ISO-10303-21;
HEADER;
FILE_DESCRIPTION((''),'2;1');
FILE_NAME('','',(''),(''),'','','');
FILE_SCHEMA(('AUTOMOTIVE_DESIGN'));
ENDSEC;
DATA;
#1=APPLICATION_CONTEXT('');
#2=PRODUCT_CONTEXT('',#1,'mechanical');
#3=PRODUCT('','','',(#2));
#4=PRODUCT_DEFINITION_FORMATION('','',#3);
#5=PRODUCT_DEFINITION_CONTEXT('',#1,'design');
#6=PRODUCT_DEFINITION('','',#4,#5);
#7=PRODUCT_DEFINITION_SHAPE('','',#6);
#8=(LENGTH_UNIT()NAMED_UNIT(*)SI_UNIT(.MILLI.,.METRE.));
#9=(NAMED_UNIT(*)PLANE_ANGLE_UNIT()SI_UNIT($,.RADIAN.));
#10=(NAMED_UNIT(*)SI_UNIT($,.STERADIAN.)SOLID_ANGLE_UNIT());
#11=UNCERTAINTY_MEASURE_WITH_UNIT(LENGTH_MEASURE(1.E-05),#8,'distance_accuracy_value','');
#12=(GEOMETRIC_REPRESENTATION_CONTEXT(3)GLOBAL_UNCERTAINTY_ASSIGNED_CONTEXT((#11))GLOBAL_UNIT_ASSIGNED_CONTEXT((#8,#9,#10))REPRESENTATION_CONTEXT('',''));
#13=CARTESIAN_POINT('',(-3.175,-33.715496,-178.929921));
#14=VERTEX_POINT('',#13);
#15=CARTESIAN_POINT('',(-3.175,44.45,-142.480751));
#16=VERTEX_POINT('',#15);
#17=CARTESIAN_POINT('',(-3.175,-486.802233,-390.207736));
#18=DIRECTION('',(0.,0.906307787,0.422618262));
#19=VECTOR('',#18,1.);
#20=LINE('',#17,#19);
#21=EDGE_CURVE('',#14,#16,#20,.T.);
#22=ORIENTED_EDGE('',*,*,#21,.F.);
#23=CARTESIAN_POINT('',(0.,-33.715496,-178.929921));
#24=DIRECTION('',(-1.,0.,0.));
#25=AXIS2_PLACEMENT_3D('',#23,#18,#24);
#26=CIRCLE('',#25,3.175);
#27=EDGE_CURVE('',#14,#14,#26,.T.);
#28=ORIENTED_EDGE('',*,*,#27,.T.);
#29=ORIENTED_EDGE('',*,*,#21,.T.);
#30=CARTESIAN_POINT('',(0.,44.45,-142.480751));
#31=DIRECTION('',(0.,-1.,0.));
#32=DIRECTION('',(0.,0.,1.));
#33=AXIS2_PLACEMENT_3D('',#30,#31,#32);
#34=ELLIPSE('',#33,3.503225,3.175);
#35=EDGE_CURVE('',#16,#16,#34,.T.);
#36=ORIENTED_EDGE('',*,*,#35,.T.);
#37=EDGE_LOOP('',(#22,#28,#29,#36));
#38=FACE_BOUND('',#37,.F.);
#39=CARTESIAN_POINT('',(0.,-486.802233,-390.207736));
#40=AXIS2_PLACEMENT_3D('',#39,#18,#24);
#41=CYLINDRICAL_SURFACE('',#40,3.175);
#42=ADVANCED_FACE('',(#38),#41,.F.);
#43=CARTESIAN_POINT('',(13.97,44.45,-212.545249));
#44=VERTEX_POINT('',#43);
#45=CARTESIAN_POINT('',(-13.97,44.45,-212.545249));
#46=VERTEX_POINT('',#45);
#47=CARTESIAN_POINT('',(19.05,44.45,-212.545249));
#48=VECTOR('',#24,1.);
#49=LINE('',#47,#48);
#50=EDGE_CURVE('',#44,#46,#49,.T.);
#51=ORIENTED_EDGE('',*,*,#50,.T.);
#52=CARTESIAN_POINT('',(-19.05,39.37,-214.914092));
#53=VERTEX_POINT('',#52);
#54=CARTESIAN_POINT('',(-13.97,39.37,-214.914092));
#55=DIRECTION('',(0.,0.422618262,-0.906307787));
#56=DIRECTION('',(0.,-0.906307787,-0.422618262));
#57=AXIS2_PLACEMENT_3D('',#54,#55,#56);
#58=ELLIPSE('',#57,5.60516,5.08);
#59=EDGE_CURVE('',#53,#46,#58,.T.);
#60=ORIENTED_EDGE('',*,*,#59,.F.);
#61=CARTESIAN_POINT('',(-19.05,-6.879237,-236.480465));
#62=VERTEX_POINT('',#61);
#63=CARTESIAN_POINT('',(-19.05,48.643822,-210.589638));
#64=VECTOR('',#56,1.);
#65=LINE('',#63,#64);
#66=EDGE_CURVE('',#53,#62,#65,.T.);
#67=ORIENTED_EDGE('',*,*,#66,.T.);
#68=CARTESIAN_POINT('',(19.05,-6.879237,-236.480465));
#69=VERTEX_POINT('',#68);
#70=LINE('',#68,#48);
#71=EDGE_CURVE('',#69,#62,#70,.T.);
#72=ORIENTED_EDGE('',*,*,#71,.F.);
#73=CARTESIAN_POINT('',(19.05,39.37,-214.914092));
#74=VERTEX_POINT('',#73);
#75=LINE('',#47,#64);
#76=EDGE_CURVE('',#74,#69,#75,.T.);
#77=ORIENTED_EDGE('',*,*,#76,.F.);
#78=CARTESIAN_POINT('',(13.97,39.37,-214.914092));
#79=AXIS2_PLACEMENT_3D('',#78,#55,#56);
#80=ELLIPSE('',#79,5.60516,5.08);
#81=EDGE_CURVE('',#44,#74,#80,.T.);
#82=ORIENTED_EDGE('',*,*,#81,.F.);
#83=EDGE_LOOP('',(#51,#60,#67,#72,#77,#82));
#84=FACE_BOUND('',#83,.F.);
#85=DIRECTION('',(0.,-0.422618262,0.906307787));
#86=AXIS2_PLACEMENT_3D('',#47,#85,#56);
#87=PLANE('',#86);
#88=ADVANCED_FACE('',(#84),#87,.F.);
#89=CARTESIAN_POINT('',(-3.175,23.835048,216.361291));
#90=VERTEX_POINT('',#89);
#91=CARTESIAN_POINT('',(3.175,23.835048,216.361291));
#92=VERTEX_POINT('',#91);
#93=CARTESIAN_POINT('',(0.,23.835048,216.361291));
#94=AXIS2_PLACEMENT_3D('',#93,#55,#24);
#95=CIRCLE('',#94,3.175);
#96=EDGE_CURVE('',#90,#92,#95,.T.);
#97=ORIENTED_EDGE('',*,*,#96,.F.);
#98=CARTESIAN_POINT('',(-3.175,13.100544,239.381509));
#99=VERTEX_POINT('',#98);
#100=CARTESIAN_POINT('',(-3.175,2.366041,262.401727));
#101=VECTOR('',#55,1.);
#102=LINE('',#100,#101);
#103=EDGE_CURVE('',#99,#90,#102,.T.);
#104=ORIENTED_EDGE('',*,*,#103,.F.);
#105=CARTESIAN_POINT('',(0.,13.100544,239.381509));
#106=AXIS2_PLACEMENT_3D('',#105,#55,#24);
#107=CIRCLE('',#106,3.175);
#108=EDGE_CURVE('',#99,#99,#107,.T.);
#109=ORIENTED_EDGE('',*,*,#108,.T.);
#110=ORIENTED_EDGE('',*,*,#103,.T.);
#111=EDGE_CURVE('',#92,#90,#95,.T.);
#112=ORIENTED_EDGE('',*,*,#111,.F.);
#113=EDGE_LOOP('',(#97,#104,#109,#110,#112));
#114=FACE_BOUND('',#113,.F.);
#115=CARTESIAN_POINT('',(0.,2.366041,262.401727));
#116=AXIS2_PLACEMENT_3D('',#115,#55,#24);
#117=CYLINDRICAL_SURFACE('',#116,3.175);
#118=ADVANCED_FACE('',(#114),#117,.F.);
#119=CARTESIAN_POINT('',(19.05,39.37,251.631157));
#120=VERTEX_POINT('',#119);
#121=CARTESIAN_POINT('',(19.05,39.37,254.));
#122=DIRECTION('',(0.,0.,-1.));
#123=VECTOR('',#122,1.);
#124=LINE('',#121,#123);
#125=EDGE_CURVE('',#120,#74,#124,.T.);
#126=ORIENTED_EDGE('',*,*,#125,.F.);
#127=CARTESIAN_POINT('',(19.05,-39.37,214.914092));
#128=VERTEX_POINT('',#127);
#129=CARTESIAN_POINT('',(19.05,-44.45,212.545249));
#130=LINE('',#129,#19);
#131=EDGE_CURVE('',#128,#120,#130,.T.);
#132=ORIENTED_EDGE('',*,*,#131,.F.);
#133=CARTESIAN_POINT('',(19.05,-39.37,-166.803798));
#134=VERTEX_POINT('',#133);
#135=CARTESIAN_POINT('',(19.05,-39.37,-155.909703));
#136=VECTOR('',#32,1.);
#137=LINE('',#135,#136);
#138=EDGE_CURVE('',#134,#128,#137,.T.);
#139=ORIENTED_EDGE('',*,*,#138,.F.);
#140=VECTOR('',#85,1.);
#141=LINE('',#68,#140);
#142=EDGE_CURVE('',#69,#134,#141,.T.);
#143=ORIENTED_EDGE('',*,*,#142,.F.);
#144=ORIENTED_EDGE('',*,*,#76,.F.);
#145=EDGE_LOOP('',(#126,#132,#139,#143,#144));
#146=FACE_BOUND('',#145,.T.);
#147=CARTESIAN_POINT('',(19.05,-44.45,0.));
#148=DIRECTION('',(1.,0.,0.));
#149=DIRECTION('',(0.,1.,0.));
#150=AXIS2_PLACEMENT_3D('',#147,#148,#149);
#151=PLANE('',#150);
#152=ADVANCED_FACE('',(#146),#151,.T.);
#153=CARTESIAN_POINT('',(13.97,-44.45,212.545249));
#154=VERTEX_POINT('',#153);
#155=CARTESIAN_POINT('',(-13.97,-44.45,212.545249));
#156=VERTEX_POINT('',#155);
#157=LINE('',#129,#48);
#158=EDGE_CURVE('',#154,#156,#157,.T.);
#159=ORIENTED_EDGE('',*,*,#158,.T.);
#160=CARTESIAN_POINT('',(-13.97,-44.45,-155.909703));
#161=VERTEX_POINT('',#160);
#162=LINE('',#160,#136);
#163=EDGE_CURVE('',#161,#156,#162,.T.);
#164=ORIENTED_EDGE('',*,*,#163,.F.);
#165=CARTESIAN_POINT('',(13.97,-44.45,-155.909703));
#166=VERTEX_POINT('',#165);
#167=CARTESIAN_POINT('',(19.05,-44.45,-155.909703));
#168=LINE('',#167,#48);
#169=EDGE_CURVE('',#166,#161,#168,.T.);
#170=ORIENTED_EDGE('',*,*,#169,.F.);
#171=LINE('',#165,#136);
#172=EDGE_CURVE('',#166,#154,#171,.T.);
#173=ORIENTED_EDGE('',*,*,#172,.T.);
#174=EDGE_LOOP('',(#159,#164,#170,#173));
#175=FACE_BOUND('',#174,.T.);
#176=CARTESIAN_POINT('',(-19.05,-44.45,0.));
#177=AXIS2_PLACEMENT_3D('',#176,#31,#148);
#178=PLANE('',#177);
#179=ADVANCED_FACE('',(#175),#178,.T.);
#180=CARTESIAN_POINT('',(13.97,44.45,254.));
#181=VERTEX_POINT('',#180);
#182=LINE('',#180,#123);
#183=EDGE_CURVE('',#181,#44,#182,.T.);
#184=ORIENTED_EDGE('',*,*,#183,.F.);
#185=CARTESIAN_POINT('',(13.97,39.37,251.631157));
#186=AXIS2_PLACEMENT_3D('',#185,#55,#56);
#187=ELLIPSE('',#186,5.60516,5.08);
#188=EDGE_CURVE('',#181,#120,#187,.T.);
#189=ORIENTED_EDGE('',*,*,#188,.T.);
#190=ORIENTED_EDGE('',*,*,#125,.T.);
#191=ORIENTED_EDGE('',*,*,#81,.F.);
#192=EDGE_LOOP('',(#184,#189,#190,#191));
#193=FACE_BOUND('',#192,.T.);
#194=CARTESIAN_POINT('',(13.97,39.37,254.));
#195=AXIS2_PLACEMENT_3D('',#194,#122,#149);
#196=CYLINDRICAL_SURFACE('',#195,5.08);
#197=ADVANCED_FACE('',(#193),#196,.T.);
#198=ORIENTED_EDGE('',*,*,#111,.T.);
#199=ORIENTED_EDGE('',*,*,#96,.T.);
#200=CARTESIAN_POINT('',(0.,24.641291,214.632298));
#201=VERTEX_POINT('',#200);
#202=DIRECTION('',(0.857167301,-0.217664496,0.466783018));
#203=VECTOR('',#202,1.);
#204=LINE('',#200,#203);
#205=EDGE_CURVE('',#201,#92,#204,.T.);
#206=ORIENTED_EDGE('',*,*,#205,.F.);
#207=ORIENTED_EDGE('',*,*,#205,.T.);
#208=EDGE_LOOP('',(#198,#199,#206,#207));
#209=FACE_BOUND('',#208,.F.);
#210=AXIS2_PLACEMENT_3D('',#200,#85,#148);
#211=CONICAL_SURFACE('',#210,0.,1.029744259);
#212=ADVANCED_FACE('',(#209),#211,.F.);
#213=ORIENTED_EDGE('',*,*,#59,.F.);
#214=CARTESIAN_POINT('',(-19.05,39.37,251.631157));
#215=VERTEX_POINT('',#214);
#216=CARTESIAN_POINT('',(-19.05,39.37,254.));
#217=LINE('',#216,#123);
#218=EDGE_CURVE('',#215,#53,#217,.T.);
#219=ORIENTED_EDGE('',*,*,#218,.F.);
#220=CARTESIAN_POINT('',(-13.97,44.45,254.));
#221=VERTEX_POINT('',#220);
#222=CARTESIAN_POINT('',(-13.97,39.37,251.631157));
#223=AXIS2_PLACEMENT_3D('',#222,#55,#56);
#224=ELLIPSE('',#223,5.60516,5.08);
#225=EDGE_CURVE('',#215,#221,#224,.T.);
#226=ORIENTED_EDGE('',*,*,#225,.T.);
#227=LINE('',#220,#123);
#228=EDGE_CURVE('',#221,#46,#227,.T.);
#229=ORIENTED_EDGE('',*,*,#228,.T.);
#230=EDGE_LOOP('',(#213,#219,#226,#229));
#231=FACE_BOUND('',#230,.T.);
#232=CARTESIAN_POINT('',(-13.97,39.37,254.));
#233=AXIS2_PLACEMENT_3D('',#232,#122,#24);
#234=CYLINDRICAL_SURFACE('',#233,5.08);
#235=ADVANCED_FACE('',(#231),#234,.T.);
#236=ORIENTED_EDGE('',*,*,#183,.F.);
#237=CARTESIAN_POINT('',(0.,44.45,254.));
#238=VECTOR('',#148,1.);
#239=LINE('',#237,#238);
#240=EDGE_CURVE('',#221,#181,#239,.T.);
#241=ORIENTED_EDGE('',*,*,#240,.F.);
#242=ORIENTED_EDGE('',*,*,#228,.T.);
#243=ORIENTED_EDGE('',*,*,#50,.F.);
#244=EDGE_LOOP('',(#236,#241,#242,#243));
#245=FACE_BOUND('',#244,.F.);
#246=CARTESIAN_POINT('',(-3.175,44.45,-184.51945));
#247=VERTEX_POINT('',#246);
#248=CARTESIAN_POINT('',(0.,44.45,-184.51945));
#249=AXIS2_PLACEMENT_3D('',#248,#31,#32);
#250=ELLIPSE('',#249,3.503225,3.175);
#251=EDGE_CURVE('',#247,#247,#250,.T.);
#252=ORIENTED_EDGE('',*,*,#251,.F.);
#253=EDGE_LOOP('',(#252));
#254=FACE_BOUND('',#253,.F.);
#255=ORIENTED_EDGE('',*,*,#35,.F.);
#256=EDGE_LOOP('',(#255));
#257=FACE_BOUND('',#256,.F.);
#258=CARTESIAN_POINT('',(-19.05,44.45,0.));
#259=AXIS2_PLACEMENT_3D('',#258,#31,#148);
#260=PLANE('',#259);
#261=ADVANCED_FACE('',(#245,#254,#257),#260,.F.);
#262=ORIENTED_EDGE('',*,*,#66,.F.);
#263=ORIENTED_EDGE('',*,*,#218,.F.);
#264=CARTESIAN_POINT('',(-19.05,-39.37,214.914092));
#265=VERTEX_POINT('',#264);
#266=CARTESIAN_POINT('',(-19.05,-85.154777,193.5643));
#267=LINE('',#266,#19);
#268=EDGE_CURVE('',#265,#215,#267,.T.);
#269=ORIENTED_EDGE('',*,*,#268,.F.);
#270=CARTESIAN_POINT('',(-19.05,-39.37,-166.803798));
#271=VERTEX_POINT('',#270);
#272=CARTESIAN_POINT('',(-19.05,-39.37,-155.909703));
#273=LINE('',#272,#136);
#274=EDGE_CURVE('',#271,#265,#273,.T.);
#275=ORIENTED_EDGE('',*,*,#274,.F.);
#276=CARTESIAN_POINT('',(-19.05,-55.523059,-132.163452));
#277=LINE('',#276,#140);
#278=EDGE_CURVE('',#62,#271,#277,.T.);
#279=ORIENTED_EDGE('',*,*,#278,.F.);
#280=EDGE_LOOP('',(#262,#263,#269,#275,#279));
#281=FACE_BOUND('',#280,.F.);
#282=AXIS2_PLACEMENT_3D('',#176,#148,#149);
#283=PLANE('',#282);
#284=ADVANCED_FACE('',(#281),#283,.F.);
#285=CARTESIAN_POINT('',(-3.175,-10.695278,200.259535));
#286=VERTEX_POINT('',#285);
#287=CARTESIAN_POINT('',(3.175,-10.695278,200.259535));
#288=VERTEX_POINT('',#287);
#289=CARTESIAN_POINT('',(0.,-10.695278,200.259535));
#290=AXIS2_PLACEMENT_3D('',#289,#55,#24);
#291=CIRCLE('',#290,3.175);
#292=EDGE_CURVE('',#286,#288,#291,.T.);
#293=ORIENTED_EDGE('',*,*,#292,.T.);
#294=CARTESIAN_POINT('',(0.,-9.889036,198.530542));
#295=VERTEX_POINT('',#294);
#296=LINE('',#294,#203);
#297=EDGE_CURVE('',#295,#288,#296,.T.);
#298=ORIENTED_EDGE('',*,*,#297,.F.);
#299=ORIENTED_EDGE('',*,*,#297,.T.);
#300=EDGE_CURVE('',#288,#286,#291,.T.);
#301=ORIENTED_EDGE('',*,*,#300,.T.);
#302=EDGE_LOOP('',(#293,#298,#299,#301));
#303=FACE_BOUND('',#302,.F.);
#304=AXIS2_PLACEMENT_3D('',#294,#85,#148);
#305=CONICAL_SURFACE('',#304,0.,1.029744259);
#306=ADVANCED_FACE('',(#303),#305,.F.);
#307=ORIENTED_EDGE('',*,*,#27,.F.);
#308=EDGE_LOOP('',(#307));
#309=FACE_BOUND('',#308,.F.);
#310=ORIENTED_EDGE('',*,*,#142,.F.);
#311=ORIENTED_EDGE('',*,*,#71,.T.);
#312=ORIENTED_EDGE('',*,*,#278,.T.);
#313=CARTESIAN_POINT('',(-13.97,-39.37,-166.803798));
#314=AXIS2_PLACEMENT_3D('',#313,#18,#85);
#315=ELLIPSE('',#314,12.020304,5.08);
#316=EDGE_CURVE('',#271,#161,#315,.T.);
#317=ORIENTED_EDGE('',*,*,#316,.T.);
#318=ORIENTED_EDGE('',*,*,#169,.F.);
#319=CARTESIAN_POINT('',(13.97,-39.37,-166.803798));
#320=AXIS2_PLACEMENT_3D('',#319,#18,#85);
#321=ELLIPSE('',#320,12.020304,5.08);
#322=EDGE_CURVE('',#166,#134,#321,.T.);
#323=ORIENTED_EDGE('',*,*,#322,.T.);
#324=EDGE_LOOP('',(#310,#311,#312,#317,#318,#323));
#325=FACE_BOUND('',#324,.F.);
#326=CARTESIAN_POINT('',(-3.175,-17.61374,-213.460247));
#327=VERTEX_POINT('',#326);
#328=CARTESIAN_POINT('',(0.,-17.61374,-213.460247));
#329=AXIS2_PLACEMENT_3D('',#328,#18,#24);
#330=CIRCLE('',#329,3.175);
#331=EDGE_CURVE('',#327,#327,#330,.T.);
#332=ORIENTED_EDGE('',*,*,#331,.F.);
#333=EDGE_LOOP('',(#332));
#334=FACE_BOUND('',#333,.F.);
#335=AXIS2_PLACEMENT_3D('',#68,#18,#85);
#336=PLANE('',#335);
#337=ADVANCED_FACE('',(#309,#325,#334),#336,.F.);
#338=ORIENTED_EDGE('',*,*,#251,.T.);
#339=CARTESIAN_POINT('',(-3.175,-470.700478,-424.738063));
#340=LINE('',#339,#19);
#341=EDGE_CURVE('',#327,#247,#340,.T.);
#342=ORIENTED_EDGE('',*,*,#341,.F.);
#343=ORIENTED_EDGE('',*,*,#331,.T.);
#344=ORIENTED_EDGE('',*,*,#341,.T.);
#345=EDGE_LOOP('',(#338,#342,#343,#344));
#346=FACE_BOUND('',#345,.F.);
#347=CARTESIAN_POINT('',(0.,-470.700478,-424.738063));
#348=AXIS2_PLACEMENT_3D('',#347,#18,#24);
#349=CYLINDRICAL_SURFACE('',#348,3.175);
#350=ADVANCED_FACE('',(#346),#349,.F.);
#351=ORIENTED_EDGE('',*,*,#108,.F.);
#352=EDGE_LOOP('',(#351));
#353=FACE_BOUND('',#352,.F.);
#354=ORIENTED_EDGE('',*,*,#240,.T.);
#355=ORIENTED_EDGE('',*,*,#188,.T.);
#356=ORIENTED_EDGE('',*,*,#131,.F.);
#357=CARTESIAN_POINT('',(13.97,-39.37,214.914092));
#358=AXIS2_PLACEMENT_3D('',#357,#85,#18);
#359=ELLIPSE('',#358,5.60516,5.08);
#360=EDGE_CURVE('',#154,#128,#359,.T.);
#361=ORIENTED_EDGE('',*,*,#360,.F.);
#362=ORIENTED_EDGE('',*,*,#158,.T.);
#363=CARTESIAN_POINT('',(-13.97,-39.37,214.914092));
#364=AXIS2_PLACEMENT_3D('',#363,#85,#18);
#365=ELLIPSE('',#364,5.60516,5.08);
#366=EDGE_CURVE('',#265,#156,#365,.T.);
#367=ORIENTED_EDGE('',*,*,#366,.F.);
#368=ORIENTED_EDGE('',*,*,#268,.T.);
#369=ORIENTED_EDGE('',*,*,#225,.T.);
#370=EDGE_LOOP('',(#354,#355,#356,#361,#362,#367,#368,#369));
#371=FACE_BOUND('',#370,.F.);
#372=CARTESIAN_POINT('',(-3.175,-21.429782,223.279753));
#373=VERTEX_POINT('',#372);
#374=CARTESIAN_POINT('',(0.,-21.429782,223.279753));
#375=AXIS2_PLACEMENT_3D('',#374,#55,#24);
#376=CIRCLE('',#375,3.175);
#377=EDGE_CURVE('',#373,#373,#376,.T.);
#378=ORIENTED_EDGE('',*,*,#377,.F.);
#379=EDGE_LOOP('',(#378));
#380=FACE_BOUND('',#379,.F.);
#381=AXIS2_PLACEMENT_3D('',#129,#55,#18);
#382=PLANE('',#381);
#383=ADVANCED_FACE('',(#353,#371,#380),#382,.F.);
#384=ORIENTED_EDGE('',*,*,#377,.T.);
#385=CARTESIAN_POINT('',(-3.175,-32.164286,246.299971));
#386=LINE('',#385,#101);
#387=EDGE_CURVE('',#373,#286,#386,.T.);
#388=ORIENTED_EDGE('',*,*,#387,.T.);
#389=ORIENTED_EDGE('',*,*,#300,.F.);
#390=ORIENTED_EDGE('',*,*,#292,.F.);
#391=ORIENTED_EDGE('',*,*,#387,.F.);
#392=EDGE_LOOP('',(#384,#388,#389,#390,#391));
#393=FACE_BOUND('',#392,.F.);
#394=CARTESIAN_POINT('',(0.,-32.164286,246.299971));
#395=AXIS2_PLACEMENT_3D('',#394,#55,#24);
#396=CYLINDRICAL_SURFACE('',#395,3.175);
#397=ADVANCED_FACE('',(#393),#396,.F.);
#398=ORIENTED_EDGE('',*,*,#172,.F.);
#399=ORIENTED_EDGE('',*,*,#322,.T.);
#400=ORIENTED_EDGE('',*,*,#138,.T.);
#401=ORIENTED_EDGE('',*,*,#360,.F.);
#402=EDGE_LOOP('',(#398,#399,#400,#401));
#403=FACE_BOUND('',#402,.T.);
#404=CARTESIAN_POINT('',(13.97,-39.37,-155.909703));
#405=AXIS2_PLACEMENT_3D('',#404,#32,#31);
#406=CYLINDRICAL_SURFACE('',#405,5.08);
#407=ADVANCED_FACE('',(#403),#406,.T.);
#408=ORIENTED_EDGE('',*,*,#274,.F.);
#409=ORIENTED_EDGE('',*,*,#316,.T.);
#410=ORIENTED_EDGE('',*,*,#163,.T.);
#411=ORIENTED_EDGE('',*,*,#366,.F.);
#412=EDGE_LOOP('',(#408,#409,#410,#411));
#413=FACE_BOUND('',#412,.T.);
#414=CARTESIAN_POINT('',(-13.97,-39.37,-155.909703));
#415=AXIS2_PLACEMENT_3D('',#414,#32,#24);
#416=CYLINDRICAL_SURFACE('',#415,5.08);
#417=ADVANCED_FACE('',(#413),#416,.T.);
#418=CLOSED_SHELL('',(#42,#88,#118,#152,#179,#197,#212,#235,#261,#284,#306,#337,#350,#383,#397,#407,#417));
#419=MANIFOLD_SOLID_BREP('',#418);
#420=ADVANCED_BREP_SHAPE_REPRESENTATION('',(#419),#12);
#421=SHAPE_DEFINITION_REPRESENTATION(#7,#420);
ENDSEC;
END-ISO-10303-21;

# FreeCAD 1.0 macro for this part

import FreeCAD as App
import Part
import Sketcher
Q = App.Units.Quantity


def edges_at(feature, points):
    """Names of the edges that pass closest to the given points."""
    edges = feature.Shape.Edges
    near = lambda p: min(range(len(edges)), key=lambda i: edges[i].distToShape(Part.Vertex(*p))[0])
    return sorted({f"Edge{near(p) + 1}" for p in points})


def add_polygon(sketch, points):
    """Adds a closed chain of lines whose ends are joined by coincident constraints."""
    first, n = sketch.GeometryCount, len(points)
    for a, b in zip(points, points[1:] + points[:1]):
        sketch.addGeometry(Part.LineSegment(App.Vector(*a, 0), App.Vector(*b, 0)), False)
    for i in range(n):
        sketch.addConstraint(Sketcher.Constraint("Coincident", first + i, 2, first + (i + 1) % n, 1))

doc = App.newDocument("Part")
body = doc.addObject("PartDesign::Body", "Body")

sketch1 = body.newObject("Sketcher::SketchObject", "Sketch")
sketch1.AttachmentSupport = (doc.getObject("XY_Plane"), [""])
sketch1.MapMode = "FlatFace"
add_polygon(sketch1, [(-19, 44), (-19, -44), (19, -44), (19, 44)])
sketch1.addConstraint([
    Sketcher.Constraint("Vertical", 0),
    Sketcher.Constraint("Horizontal", 1),
    Sketcher.Constraint("Vertical", 2),
    Sketcher.Constraint("Horizontal", 3),
    Sketcher.Constraint("Symmetric", 0, 2, 2, 2, -1, 1),
    Sketcher.Constraint("DistanceX", 1, 1, 1, 2, Q("1.5 in")),
    Sketcher.Constraint("DistanceY", 0, 2, 0, 1, Q("3.5 in")),
])
pad1 = body.newObject("PartDesign::Pad", "Pad")
pad1.Profile = sketch1
pad1.Length = Q("20 in")
pad1.Midplane = True

sketch2 = body.newObject("Sketcher::SketchObject", "Sketch001")
sketch2.AttachmentSupport = (doc.getObject("YZ_Plane"), [""])
sketch2.MapMode = "FlatFace"
sketch2.AttachmentOffset = App.Placement(App.Vector(0, 0, 0.75 * 25.4), App.Rotation())
add_polygon(sketch2, [(-44, 254), (-44, 213), (44, 254)])
add_polygon(sketch2, [(-44, -254), (44, -254), (44, -213), (-7, -236), (-44, -156)])
sketch2.addConstraint([
    Sketcher.Constraint("Vertical", 0),
    Sketcher.Constraint("Horizontal", 2),
    Sketcher.Constraint("Horizontal", 3),
    Sketcher.Constraint("Vertical", 4),
    Sketcher.Constraint("Vertical", 7),
    Sketcher.Constraint("Symmetric", 2, 2, 3, 2, -1, 1),
    Sketcher.Constraint("Parallel", 1, 5),
    Sketcher.Constraint("Perpendicular", 5, 6),
    Sketcher.Constraint("Vertical", 1, 2, 3, 2),
    Sketcher.Constraint("Vertical", 2, 2, 6, 2),
    Sketcher.Constraint("Equal", 0, 4),
    Sketcher.Constraint("DistanceX", 2, 2, 2, 1, Q("3.5 in")),
    Sketcher.Constraint("DistanceY", -1, 1, 1, 2, Q("10 in")),
    Sketcher.Constraint("Angle", 1, Q("25 deg")),
    Sketcher.Constraint("Distance", 6, Q("3.5 in")),
])
pocket1 = body.newObject("PartDesign::Pocket", "Pocket")
pocket1.Profile = sketch2
pocket1.Type = "ThroughAll"

sketch3 = body.newObject("Sketcher::SketchObject", "Sketch002")
sketch3.Placement = App.Placement(App.Vector(0, -96.227835, -44.871777), App.Rotation(App.Vector(1, 0, 0), App.Vector(0, -0.422618262, 0.906307787), App.Vector(0, -0.906307787, -0.422618262), "ZXY"))
sketch3.addGeometry([
    Part.Circle(App.Vector(0, -147.9, 0), App.Vector(0, 0, 1), 3.2),
    Part.Circle(App.Vector(0, -186, 0), App.Vector(0, 0, 1), 3.2),
], False)
sketch3.addConstraint([
    Sketcher.Constraint("Equal", 0, 1),
    Sketcher.Constraint("PointOnObject", 0, 3, -2),
    Sketcher.Constraint("PointOnObject", 1, 3, -2),
    Sketcher.Constraint("Diameter", 0, Q("0.25 in")),
    Sketcher.Constraint("DistanceY", 1, 3, 0, 3, Q("1.5 in")),
    Sketcher.Constraint("DistanceY", 0, 3, -1, 1, Q("147.916796 mm")),
])
doc.recompute()
hole = body.newObject("PartDesign::Hole", "Hole")
hole.Profile = sketch3
hole.ThreadType = "None"
hole.Diameter = Q("0.25 in")
hole.DepthType = "ThroughAll"
doc.recompute()

fillet = body.newObject("PartDesign::Fillet", "Fillet")
fillet.Base = (hole, edges_at(hole, [
    (19.05, -44.45, 28.318),
    (-19.05, -44.45, 28.318),
    (19.05, 44.45, 20.727),
    (-19.05, 44.45, 20.727),
]))
fillet.Radius = Q("0.2 in")

sketch4 = body.newObject("Sketcher::SketchObject", "Sketch003")
sketch4.Placement = App.Placement(App.Vector(0, -89.348599, 191.608689), App.Rotation(App.Vector(1, 0, 0), App.Vector(0, 0.906307787, 0.422618262), App.Vector(0, -0.422618262, 0.906307787), "ZXY"))
sketch4.addGeometry([
    Part.Circle(App.Vector(0, 113, 0), App.Vector(0, 0, 1), 3.2),
    Part.Circle(App.Vector(0, 74.9, 0), App.Vector(0, 0, 1), 3.2),
], False)
sketch4.addConstraint([
    Sketcher.Constraint("Equal", 0, 1),
    Sketcher.Constraint("PointOnObject", 0, 3, -2),
    Sketcher.Constraint("PointOnObject", 1, 3, -2),
    Sketcher.Constraint("Diameter", 0, Q("0.25 in")),
    Sketcher.Constraint("DistanceY", 1, 3, 0, 3, Q("1.5 in")),
    Sketcher.Constraint("DistanceY", -1, 1, 0, 3, Q("113.040123 mm")),
])
doc.recompute()
hole2 = body.newObject("PartDesign::Hole", "Hole001")
hole2.Profile = sketch4
hole2.ThreadType = "None"
hole2.Diameter = Q("0.25 in")
hole2.DepthType = "Dimension"
hole2.Depth = Q("1 in")
hole2.DrillPoint = "Angled"
hole2.DrillPointAngle = 118

doc.recompute()
